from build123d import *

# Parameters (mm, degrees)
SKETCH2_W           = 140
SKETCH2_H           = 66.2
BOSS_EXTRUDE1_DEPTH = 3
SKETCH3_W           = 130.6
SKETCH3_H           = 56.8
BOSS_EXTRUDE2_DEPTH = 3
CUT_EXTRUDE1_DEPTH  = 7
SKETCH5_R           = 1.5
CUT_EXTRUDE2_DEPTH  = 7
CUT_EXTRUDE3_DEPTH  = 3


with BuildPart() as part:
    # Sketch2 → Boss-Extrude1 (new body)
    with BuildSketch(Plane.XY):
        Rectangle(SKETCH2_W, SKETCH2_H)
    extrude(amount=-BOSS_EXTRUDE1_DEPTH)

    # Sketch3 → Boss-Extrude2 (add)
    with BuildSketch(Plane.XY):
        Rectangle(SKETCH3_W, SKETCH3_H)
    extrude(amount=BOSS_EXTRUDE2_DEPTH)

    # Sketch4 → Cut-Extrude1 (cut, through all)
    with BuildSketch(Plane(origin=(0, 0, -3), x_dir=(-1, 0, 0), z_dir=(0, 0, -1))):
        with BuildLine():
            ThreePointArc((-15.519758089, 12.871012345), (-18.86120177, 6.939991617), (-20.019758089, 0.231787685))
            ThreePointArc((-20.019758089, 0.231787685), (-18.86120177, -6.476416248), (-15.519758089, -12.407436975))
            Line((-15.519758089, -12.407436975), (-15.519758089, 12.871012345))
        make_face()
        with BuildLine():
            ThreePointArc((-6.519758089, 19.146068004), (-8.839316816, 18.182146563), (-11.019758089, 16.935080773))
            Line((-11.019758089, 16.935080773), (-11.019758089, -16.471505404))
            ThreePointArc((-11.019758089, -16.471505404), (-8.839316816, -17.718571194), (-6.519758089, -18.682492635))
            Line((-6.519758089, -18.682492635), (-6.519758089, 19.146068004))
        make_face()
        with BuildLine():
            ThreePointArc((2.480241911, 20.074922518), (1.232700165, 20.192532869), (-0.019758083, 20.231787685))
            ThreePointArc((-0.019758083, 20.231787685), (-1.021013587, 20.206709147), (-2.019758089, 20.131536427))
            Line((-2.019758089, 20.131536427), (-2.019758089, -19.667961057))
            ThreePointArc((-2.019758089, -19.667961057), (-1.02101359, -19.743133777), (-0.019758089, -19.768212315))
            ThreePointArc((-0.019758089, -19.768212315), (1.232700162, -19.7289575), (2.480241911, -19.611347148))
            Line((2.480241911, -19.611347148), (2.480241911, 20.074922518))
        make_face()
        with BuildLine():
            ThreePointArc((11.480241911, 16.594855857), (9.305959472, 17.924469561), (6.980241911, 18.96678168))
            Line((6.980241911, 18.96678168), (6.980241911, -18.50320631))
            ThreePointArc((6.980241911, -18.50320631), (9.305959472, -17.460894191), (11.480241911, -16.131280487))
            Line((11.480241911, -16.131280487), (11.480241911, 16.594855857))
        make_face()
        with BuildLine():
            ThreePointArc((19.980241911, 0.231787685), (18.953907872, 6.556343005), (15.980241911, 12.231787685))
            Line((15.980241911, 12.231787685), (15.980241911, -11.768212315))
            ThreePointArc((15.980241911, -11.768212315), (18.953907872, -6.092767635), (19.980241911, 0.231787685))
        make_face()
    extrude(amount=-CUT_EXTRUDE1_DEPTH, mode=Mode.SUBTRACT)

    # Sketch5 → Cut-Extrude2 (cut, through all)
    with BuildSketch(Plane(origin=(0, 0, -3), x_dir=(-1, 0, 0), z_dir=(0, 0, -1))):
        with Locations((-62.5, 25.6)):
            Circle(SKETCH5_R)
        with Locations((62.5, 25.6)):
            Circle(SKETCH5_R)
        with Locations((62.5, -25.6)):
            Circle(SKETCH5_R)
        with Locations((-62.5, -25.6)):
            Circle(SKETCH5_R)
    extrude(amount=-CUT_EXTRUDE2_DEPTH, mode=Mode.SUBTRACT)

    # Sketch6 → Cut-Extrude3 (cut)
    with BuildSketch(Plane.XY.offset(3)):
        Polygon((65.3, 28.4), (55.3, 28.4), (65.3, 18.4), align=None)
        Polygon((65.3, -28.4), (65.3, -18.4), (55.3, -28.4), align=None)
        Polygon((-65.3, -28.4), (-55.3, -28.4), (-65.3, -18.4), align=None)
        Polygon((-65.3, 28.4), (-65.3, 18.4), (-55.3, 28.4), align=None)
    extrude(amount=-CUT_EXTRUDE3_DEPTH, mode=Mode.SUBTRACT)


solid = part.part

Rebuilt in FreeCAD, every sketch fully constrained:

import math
import FreeCAD as App
import Part
import Sketcher
from FreeCAD import Vector

doc = App.newDocument("Part")
body = doc.addObject("PartDesign::Body", "Body")

# Sketch on XY plane
sketch1 = body.newObject("Sketcher::SketchObject", "Sketch")
sketch1.AttachmentSupport = (doc.getObject("XY_Plane"), [""])
sketch1.MapMode = "FlatFace"
sketch1.addGeometry([
    Part.LineSegment(Vector(-70, 33, 0), Vector(-70, -33, 0)),
    Part.LineSegment(Vector(-70, -33, 0), Vector(70, -33, 0)),
    Part.LineSegment(Vector(70, -33, 0), Vector(70, 33, 0)),
    Part.LineSegment(Vector(70, 33, 0), Vector(-70, 33, 0)),
], False)
sketch1.addConstraint([
    Sketcher.Constraint("Coincident", 0, 2, 1, 1),
    Sketcher.Constraint("Coincident", 1, 2, 2, 1),
    Sketcher.Constraint("Coincident", 2, 2, 3, 1),
    Sketcher.Constraint("Coincident", 3, 2, 0, 1),
    Sketcher.Constraint("Vertical", 0),
    Sketcher.Constraint("Horizontal", 1),
    Sketcher.Constraint("Vertical", 2),
    Sketcher.Constraint("Horizontal", 3),
    Sketcher.Constraint("Symmetric", 0, 2, 2, 2, -1, 1),
    Sketcher.Constraint("DistanceX", 1, 1, 1, 2, 140.0),
    Sketcher.Constraint("DistanceY", 0, 2, 0, 1, 66.2),
])
pad1 = body.newObject("PartDesign::Pad", "Pad")
pad1.Profile = sketch1
pad1.Length = 3
pad1.Reversed = True

# Sketch on XY plane
sketch2 = body.newObject("Sketcher::SketchObject", "Sketch001")
sketch2.AttachmentSupport = (doc.getObject("XY_Plane"), [""])
sketch2.MapMode = "FlatFace"
sketch2.addGeometry([
    Part.LineSegment(Vector(-65, 28, 0), Vector(-65, -28, 0)),
    Part.LineSegment(Vector(-65, -28, 0), Vector(65, -28, 0)),
    Part.LineSegment(Vector(65, -28, 0), Vector(65, 28, 0)),
    Part.LineSegment(Vector(65, 28, 0), Vector(-65, 28, 0)),
], False)
sketch2.addConstraint([
    Sketcher.Constraint("Coincident", 0, 2, 1, 1),
    Sketcher.Constraint("Coincident", 1, 2, 2, 1),
    Sketcher.Constraint("Coincident", 2, 2, 3, 1),
    Sketcher.Constraint("Coincident", 3, 2, 0, 1),
    Sketcher.Constraint("Vertical", 0),
    Sketcher.Constraint("Horizontal", 1),
    Sketcher.Constraint("Vertical", 2),
    Sketcher.Constraint("Horizontal", 3),
    Sketcher.Constraint("Symmetric", 0, 2, 2, 2, -1, 1),
    Sketcher.Constraint("DistanceX", 1, 1, 1, 2, 130.6),
    Sketcher.Constraint("DistanceY", 0, 2, 0, 1, 56.8),
])
pad2 = body.newObject("PartDesign::Pad", "Pad001")
pad2.Profile = sketch2
pad2.Length = 3

# Sketch on XY plane
sketch3 = body.newObject("Sketcher::SketchObject", "Sketch002")
sketch3.AttachmentSupport = (doc.getObject("XY_Plane"), [""])
sketch3.MapMode = "FlatFace"
sketch3.AttachmentOffset = App.Placement(Vector(0, 0, -3), App.Rotation())
sketch3.addGeometry([
    Part.ArcOfCircle(Part.Circle(Vector(0, 0.2, 0), Vector(0, 0, 1), 20), math.radians(0), math.radians(39)),  # 0
    Part.ArcOfCircle(Part.Circle(Vector(0, 0.2, 0), Vector(0, 0, 1), 20), math.radians(-39), math.radians(0)),  # 1
    Part.LineSegment(Vector(15.5, -12.4, 0), Vector(15.5, 12.9, 0)),  # 2
    Part.ArcOfCircle(Part.Circle(Vector(0, 0.2, 0), Vector(0, 0, 1), 20), math.radians(56.63), math.radians(71.03)),  # 3
    Part.LineSegment(Vector(11, 16.9, 0), Vector(11, -16.5, 0)),  # 4
    Part.ArcOfCircle(Part.Circle(Vector(0, 0.2, 0), Vector(0, 0, 1), 20), math.radians(-71.03), math.radians(-56.63)),  # 5
    Part.LineSegment(Vector(6.5, -18.7, 0), Vector(6.5, 19.1, 0)),  # 6
    Part.ArcOfCircle(Part.Circle(Vector(0, 0.2, 0), Vector(0, 0, 1), 20), math.radians(90), math.radians(97.18)),  # 7
    Part.ArcOfCircle(Part.Circle(Vector(0, 0.2, 0), Vector(0, 0, 1), 20), math.radians(84.26), math.radians(90)),  # 8
    Part.LineSegment(Vector(2, 20.1, 0), Vector(2, -19.7, 0)),  # 9
    Part.ArcOfCircle(Part.Circle(Vector(0, 0.2, 0), Vector(0, 0, 1), 20), math.radians(-90), math.radians(-84.26)),  # 10
    Part.ArcOfCircle(Part.Circle(Vector(0, 0.2, 0), Vector(0, 0, 1), 20), math.radians(-97.18), math.radians(-90)),  # 11
    Part.LineSegment(Vector(-2.5, -19.6, 0), Vector(-2.5, 20.1, 0)),  # 12
    Part.ArcOfCircle(Part.Circle(Vector(0, 0.2, 0), Vector(0, 0, 1), 20), math.radians(110.49), math.radians(125.1)),  # 13
    Part.LineSegment(Vector(-7, 19, 0), Vector(-7, -18.5, 0)),  # 14
    Part.ArcOfCircle(Part.Circle(Vector(0, 0.2, 0), Vector(0, 0, 1), 20), math.radians(-125.1), math.radians(-110.49)),  # 15
    Part.LineSegment(Vector(-11.5, -16.1, 0), Vector(-11.5, 16.6, 0)),  # 16
    Part.ArcOfCircle(Part.Circle(Vector(0, 0.2, 0), Vector(0, 0, 1), 20), math.radians(143), math.radians(180)),  # 17
    Part.LineSegment(Vector(-16, 12.2, 0), Vector(-16, -11.8, 0)),  # 18
    Part.ArcOfCircle(Part.Circle(Vector(0, 0.2, 0), Vector(0, 0, 1), 20), math.radians(-180), math.radians(-143)),  # 19
], False)
sketch3.addConstraint([
    Sketcher.Constraint("Tangent", 0, 1, 1, 2),
    Sketcher.Constraint("Coincident", 1, 1, 2, 1),
    Sketcher.Constraint("Coincident", 2, 2, 0, 2),
    Sketcher.Constraint("Coincident", 3, 1, 4, 1),
    Sketcher.Constraint("Coincident", 4, 2, 5, 2),
    Sketcher.Constraint("Coincident", 5, 1, 6, 1),
    Sketcher.Constraint("Coincident", 6, 2, 3, 2),
    Sketcher.Constraint("Tangent", 7, 1, 8, 2),
    Sketcher.Constraint("Coincident", 8, 1, 9, 1),
    Sketcher.Constraint("Coincident", 9, 2, 10, 2),
    Sketcher.Constraint("Tangent", 10, 1, 11, 2),
    Sketcher.Constraint("Coincident", 11, 1, 12, 1),
    Sketcher.Constraint("Coincident", 12, 2, 7, 2),
    Sketcher.Constraint("Coincident", 13, 1, 14, 1),
    Sketcher.Constraint("Coincident", 14, 2, 15, 2),
    Sketcher.Constraint("Coincident", 15, 1, 16, 1),
    Sketcher.Constraint("Coincident", 16, 2, 13, 2),
    Sketcher.Constraint("Coincident", 17, 1, 18, 1),
    Sketcher.Constraint("Coincident", 18, 2, 19, 2),
    Sketcher.Constraint("Tangent", 19, 1, 17, 2),
    Sketcher.Constraint("Vertical", 2),
    Sketcher.Constraint("Vertical", 4),
    Sketcher.Constraint("Vertical", 6),
    Sketcher.Constraint("Vertical", 9),
    Sketcher.Constraint("Vertical", 12),
    Sketcher.Constraint("Vertical", 14),
    Sketcher.Constraint("Vertical", 16),
    Sketcher.Constraint("Vertical", 18),
    Sketcher.Constraint("Coincident", 3, 3, 0, 3),
    Sketcher.Constraint("Coincident", 5, 3, 0, 3),
    Sketcher.Constraint("Coincident", 7, 3, 0, 3),
    Sketcher.Constraint("Coincident", 10, 3, 0, 3),
    Sketcher.Constraint("Coincident", 13, 3, 0, 3),
    Sketcher.Constraint("Coincident", 15, 3, 0, 3),
    Sketcher.Constraint("Coincident", 17, 3, 0, 3),
    Sketcher.Constraint("Equal", 0, 1),
    Sketcher.Constraint("Equal", 1, 3),
    Sketcher.Constraint("Equal", 3, 5),
    Sketcher.Constraint("Equal", 5, 7),
    Sketcher.Constraint("Equal", 7, 8),
    Sketcher.Constraint("Equal", 8, 10),
    Sketcher.Constraint("Equal", 10, 11),
    Sketcher.Constraint("Equal", 11, 13),
    Sketcher.Constraint("Equal", 13, 15),
    Sketcher.Constraint("Equal", 15, 17),
    Sketcher.Constraint("Equal", 17, 19),
    Sketcher.Constraint("Horizontal", 19, 3, 0, 1),
    Sketcher.Constraint("Horizontal", 0, 1, 19, 1),
    Sketcher.Constraint("Vertical", 19, 3, 7, 1),
    Sketcher.Constraint("Vertical", 7, 1, 10, 1),
    Sketcher.Constraint("Radius", 0, 20.0),
    Sketcher.Constraint("DistanceY", 18, 2, 18, 1, 24.0),
    Sketcher.Constraint("DistanceX", 3, 1, 0, 1, 9.0),
    Sketcher.Constraint("DistanceX", 5, 1, 1, 1, 9.0),
    Sketcher.Constraint("DistanceX", 7, 1, 8, 1, 2.0),
    Sketcher.Constraint("DistanceX", 11, 1, 5, 1, 9.0),
    Sketcher.Constraint("DistanceX", 13, 1, 7, 1, 7.0),
    Sketcher.Constraint("DistanceX", 15, 1, 11, 1, 9.0),
    Sketcher.Constraint("DistanceX", 1, 1, 0, 1, 4.5),
    Sketcher.Constraint("DistanceX", -1, 1, 0, 3, 0.019758),
    Sketcher.Constraint("DistanceY", -1, 1, 3, 1, 16.935081),
])
pocket1 = body.newObject("PartDesign::Pocket", "Pocket")
pocket1.Profile = sketch3
pocket1.Type = "ThroughAll"
pocket1.Reversed = True

# Sketch on XY plane
sketch4 = body.newObject("Sketcher::SketchObject", "Sketch003")
sketch4.AttachmentSupport = (doc.getObject("XY_Plane"), [""])
sketch4.MapMode = "FlatFace"
sketch4.AttachmentOffset = App.Placement(Vector(0, 0, -3), App.Rotation())
sketch4.addGeometry([
    Part.Circle(Vector(62.5, 25.6, 0), Vector(0, 0, 1), 1.5),
    Part.Circle(Vector(-62.5, 25.6, 0), Vector(0, 0, 1), 1.5),
    Part.Circle(Vector(-62.5, -25.6, 0), Vector(0, 0, 1), 1.5),
    Part.Circle(Vector(62.5, -25.6, 0), Vector(0, 0, 1), 1.5),
], False)
sketch4.addConstraint([
    Sketcher.Constraint("Equal", 0, 1),
    Sketcher.Constraint("Equal", 1, 2),
    Sketcher.Constraint("Equal", 2, 3),
    Sketcher.Constraint("Symmetric", 0, 3, 2, 3, -1, 1),
    Sketcher.Constraint("Symmetric", 1, 3, 3, 3, -1, 1),
    Sketcher.Constraint("Symmetric", 0, 3, 1, 3, -2),
    Sketcher.Constraint("Diameter", 0, 3.0),
    Sketcher.Constraint("DistanceX", 1, 3, 0, 3, 125.0),
    Sketcher.Constraint("DistanceY", -1, 1, 0, 3, 25.6),
])
pocket2 = body.newObject("PartDesign::Pocket", "Pocket001")
pocket2.Profile = sketch4
pocket2.Type = "ThroughAll"
pocket2.Reversed = True

# Sketch on XY plane
sketch5 = body.newObject("Sketcher::SketchObject", "Sketch004")
sketch5.AttachmentSupport = (doc.getObject("XY_Plane"), [""])
sketch5.MapMode = "FlatFace"
sketch5.AttachmentOffset = App.Placement(Vector(0, 0, 3), App.Rotation())
sketch5.addGeometry([
    Part.LineSegment(Vector(65, 28, 0), Vector(55, 28, 0)),  # 0
    Part.LineSegment(Vector(55, 28, 0), Vector(65, 18, 0)),  # 1
    Part.LineSegment(Vector(65, 18, 0), Vector(65, 28, 0)),  # 2
    Part.LineSegment(Vector(65, -28, 0), Vector(65, -18, 0)),  # 3
    Part.LineSegment(Vector(65, -18, 0), Vector(55, -28, 0)),  # 4
    Part.LineSegment(Vector(55, -28, 0), Vector(65, -28, 0)),  # 5
    Part.LineSegment(Vector(-65, -28, 0), Vector(-55, -28, 0)),  # 6
    Part.LineSegment(Vector(-55, -28, 0), Vector(-65, -18, 0)),  # 7
    Part.LineSegment(Vector(-65, -18, 0), Vector(-65, -28, 0)),  # 8
    Part.LineSegment(Vector(-65, 28, 0), Vector(-65, 18, 0)),  # 9
    Part.LineSegment(Vector(-65, 18, 0), Vector(-55, 28, 0)),  # 10
    Part.LineSegment(Vector(-55, 28, 0), Vector(-65, 28, 0)),  # 11
], False)
sketch5.addConstraint([
    Sketcher.Constraint("Coincident", 0, 2, 1, 1),
    Sketcher.Constraint("Coincident", 1, 2, 2, 1),
    Sketcher.Constraint("Coincident", 2, 2, 0, 1),
    Sketcher.Constraint("Coincident", 3, 2, 4, 1),
    Sketcher.Constraint("Coincident", 4, 2, 5, 1),
    Sketcher.Constraint("Coincident", 5, 2, 3, 1),
    Sketcher.Constraint("Coincident", 6, 2, 7, 1),
    Sketcher.Constraint("Coincident", 7, 2, 8, 1),
    Sketcher.Constraint("Coincident", 8, 2, 6, 1),
    Sketcher.Constraint("Coincident", 9, 2, 10, 1),
    Sketcher.Constraint("Coincident", 10, 2, 11, 1),
    Sketcher.Constraint("Coincident", 11, 2, 9, 1),
    Sketcher.Constraint("Horizontal", 0),
    Sketcher.Constraint("Vertical", 2),
    Sketcher.Constraint("Vertical", 3),
    Sketcher.Constraint("Horizontal", 5),
    Sketcher.Constraint("Horizontal", 6),
    Sketcher.Constraint("Vertical", 8),
    Sketcher.Constraint("Vertical", 9),
    Sketcher.Constraint("Horizontal", 11),
    Sketcher.Constraint("Symmetric", 0, 2, 6, 2, -1, 1),
    Sketcher.Constraint("Symmetric", 1, 2, 7, 2, -1, 1),
    Sketcher.Constraint("Symmetric", 3, 2, 9, 2, -1, 1),
    Sketcher.Constraint("Symmetric", 4, 2, 10, 2, -1, 1),
    Sketcher.Constraint("Symmetric", 4, 2, 6, 2, -2),
    Sketcher.Constraint("Symmetric", 3, 2, 7, 2, -2),
    Sketcher.Constraint("Perpendicular", 1, 4),
    Sketcher.Constraint("DistanceX", 0, 2, 0, 1, 10.0),
    Sketcher.Constraint("DistanceX", -1, 1, 0, 2, 55.3),
    Sketcher.Constraint("DistanceY", -1, 1, 0, 2, 28.4),
])
pocket3 = body.newObject("PartDesign::Pocket", "Pocket002")
pocket3.Profile = sketch5
pocket3.Length = 3

doc.recompute()
